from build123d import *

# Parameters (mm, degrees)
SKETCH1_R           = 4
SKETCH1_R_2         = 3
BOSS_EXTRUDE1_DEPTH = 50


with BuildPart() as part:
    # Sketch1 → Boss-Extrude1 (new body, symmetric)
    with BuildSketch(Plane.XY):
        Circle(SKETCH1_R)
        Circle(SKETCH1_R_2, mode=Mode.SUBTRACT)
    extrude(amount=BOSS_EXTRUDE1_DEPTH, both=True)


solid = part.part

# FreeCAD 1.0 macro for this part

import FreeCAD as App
import Part
import Sketcher

V = App.Vector
Q = App.Units.Quantity

doc = App.newDocument("Part")
body = doc.addObject("PartDesign::Body", "Body")

sketch1 = body.newObject("Sketcher::SketchObject", "Sketch")
sketch1.AttachmentSupport = (doc.getObject("XY_Plane"), [""])
sketch1.MapMode = "FlatFace"
sketch1.addGeometry([
    Part.Circle(V(0, 0, 0), V(0, 0, 1), 4),
    Part.Circle(V(0, 0, 0), V(0, 0, 1), 3),
], False)
sketch1.addConstraint([
    Sketcher.Constraint("Coincident", 0, 3, -1, 1),
    Sketcher.Constraint("Coincident", 1, 3, -1, 1),
    Sketcher.Constraint("Diameter", 0, Q("8 mm")),
    Sketcher.Constraint("Diameter", 1, Q("6 mm")),
])
pad1 = body.newObject("PartDesign::Pad", "Pad")
pad1.Profile = sketch1
pad1.Length = 100
pad1.Midplane = True

doc.recompute()
